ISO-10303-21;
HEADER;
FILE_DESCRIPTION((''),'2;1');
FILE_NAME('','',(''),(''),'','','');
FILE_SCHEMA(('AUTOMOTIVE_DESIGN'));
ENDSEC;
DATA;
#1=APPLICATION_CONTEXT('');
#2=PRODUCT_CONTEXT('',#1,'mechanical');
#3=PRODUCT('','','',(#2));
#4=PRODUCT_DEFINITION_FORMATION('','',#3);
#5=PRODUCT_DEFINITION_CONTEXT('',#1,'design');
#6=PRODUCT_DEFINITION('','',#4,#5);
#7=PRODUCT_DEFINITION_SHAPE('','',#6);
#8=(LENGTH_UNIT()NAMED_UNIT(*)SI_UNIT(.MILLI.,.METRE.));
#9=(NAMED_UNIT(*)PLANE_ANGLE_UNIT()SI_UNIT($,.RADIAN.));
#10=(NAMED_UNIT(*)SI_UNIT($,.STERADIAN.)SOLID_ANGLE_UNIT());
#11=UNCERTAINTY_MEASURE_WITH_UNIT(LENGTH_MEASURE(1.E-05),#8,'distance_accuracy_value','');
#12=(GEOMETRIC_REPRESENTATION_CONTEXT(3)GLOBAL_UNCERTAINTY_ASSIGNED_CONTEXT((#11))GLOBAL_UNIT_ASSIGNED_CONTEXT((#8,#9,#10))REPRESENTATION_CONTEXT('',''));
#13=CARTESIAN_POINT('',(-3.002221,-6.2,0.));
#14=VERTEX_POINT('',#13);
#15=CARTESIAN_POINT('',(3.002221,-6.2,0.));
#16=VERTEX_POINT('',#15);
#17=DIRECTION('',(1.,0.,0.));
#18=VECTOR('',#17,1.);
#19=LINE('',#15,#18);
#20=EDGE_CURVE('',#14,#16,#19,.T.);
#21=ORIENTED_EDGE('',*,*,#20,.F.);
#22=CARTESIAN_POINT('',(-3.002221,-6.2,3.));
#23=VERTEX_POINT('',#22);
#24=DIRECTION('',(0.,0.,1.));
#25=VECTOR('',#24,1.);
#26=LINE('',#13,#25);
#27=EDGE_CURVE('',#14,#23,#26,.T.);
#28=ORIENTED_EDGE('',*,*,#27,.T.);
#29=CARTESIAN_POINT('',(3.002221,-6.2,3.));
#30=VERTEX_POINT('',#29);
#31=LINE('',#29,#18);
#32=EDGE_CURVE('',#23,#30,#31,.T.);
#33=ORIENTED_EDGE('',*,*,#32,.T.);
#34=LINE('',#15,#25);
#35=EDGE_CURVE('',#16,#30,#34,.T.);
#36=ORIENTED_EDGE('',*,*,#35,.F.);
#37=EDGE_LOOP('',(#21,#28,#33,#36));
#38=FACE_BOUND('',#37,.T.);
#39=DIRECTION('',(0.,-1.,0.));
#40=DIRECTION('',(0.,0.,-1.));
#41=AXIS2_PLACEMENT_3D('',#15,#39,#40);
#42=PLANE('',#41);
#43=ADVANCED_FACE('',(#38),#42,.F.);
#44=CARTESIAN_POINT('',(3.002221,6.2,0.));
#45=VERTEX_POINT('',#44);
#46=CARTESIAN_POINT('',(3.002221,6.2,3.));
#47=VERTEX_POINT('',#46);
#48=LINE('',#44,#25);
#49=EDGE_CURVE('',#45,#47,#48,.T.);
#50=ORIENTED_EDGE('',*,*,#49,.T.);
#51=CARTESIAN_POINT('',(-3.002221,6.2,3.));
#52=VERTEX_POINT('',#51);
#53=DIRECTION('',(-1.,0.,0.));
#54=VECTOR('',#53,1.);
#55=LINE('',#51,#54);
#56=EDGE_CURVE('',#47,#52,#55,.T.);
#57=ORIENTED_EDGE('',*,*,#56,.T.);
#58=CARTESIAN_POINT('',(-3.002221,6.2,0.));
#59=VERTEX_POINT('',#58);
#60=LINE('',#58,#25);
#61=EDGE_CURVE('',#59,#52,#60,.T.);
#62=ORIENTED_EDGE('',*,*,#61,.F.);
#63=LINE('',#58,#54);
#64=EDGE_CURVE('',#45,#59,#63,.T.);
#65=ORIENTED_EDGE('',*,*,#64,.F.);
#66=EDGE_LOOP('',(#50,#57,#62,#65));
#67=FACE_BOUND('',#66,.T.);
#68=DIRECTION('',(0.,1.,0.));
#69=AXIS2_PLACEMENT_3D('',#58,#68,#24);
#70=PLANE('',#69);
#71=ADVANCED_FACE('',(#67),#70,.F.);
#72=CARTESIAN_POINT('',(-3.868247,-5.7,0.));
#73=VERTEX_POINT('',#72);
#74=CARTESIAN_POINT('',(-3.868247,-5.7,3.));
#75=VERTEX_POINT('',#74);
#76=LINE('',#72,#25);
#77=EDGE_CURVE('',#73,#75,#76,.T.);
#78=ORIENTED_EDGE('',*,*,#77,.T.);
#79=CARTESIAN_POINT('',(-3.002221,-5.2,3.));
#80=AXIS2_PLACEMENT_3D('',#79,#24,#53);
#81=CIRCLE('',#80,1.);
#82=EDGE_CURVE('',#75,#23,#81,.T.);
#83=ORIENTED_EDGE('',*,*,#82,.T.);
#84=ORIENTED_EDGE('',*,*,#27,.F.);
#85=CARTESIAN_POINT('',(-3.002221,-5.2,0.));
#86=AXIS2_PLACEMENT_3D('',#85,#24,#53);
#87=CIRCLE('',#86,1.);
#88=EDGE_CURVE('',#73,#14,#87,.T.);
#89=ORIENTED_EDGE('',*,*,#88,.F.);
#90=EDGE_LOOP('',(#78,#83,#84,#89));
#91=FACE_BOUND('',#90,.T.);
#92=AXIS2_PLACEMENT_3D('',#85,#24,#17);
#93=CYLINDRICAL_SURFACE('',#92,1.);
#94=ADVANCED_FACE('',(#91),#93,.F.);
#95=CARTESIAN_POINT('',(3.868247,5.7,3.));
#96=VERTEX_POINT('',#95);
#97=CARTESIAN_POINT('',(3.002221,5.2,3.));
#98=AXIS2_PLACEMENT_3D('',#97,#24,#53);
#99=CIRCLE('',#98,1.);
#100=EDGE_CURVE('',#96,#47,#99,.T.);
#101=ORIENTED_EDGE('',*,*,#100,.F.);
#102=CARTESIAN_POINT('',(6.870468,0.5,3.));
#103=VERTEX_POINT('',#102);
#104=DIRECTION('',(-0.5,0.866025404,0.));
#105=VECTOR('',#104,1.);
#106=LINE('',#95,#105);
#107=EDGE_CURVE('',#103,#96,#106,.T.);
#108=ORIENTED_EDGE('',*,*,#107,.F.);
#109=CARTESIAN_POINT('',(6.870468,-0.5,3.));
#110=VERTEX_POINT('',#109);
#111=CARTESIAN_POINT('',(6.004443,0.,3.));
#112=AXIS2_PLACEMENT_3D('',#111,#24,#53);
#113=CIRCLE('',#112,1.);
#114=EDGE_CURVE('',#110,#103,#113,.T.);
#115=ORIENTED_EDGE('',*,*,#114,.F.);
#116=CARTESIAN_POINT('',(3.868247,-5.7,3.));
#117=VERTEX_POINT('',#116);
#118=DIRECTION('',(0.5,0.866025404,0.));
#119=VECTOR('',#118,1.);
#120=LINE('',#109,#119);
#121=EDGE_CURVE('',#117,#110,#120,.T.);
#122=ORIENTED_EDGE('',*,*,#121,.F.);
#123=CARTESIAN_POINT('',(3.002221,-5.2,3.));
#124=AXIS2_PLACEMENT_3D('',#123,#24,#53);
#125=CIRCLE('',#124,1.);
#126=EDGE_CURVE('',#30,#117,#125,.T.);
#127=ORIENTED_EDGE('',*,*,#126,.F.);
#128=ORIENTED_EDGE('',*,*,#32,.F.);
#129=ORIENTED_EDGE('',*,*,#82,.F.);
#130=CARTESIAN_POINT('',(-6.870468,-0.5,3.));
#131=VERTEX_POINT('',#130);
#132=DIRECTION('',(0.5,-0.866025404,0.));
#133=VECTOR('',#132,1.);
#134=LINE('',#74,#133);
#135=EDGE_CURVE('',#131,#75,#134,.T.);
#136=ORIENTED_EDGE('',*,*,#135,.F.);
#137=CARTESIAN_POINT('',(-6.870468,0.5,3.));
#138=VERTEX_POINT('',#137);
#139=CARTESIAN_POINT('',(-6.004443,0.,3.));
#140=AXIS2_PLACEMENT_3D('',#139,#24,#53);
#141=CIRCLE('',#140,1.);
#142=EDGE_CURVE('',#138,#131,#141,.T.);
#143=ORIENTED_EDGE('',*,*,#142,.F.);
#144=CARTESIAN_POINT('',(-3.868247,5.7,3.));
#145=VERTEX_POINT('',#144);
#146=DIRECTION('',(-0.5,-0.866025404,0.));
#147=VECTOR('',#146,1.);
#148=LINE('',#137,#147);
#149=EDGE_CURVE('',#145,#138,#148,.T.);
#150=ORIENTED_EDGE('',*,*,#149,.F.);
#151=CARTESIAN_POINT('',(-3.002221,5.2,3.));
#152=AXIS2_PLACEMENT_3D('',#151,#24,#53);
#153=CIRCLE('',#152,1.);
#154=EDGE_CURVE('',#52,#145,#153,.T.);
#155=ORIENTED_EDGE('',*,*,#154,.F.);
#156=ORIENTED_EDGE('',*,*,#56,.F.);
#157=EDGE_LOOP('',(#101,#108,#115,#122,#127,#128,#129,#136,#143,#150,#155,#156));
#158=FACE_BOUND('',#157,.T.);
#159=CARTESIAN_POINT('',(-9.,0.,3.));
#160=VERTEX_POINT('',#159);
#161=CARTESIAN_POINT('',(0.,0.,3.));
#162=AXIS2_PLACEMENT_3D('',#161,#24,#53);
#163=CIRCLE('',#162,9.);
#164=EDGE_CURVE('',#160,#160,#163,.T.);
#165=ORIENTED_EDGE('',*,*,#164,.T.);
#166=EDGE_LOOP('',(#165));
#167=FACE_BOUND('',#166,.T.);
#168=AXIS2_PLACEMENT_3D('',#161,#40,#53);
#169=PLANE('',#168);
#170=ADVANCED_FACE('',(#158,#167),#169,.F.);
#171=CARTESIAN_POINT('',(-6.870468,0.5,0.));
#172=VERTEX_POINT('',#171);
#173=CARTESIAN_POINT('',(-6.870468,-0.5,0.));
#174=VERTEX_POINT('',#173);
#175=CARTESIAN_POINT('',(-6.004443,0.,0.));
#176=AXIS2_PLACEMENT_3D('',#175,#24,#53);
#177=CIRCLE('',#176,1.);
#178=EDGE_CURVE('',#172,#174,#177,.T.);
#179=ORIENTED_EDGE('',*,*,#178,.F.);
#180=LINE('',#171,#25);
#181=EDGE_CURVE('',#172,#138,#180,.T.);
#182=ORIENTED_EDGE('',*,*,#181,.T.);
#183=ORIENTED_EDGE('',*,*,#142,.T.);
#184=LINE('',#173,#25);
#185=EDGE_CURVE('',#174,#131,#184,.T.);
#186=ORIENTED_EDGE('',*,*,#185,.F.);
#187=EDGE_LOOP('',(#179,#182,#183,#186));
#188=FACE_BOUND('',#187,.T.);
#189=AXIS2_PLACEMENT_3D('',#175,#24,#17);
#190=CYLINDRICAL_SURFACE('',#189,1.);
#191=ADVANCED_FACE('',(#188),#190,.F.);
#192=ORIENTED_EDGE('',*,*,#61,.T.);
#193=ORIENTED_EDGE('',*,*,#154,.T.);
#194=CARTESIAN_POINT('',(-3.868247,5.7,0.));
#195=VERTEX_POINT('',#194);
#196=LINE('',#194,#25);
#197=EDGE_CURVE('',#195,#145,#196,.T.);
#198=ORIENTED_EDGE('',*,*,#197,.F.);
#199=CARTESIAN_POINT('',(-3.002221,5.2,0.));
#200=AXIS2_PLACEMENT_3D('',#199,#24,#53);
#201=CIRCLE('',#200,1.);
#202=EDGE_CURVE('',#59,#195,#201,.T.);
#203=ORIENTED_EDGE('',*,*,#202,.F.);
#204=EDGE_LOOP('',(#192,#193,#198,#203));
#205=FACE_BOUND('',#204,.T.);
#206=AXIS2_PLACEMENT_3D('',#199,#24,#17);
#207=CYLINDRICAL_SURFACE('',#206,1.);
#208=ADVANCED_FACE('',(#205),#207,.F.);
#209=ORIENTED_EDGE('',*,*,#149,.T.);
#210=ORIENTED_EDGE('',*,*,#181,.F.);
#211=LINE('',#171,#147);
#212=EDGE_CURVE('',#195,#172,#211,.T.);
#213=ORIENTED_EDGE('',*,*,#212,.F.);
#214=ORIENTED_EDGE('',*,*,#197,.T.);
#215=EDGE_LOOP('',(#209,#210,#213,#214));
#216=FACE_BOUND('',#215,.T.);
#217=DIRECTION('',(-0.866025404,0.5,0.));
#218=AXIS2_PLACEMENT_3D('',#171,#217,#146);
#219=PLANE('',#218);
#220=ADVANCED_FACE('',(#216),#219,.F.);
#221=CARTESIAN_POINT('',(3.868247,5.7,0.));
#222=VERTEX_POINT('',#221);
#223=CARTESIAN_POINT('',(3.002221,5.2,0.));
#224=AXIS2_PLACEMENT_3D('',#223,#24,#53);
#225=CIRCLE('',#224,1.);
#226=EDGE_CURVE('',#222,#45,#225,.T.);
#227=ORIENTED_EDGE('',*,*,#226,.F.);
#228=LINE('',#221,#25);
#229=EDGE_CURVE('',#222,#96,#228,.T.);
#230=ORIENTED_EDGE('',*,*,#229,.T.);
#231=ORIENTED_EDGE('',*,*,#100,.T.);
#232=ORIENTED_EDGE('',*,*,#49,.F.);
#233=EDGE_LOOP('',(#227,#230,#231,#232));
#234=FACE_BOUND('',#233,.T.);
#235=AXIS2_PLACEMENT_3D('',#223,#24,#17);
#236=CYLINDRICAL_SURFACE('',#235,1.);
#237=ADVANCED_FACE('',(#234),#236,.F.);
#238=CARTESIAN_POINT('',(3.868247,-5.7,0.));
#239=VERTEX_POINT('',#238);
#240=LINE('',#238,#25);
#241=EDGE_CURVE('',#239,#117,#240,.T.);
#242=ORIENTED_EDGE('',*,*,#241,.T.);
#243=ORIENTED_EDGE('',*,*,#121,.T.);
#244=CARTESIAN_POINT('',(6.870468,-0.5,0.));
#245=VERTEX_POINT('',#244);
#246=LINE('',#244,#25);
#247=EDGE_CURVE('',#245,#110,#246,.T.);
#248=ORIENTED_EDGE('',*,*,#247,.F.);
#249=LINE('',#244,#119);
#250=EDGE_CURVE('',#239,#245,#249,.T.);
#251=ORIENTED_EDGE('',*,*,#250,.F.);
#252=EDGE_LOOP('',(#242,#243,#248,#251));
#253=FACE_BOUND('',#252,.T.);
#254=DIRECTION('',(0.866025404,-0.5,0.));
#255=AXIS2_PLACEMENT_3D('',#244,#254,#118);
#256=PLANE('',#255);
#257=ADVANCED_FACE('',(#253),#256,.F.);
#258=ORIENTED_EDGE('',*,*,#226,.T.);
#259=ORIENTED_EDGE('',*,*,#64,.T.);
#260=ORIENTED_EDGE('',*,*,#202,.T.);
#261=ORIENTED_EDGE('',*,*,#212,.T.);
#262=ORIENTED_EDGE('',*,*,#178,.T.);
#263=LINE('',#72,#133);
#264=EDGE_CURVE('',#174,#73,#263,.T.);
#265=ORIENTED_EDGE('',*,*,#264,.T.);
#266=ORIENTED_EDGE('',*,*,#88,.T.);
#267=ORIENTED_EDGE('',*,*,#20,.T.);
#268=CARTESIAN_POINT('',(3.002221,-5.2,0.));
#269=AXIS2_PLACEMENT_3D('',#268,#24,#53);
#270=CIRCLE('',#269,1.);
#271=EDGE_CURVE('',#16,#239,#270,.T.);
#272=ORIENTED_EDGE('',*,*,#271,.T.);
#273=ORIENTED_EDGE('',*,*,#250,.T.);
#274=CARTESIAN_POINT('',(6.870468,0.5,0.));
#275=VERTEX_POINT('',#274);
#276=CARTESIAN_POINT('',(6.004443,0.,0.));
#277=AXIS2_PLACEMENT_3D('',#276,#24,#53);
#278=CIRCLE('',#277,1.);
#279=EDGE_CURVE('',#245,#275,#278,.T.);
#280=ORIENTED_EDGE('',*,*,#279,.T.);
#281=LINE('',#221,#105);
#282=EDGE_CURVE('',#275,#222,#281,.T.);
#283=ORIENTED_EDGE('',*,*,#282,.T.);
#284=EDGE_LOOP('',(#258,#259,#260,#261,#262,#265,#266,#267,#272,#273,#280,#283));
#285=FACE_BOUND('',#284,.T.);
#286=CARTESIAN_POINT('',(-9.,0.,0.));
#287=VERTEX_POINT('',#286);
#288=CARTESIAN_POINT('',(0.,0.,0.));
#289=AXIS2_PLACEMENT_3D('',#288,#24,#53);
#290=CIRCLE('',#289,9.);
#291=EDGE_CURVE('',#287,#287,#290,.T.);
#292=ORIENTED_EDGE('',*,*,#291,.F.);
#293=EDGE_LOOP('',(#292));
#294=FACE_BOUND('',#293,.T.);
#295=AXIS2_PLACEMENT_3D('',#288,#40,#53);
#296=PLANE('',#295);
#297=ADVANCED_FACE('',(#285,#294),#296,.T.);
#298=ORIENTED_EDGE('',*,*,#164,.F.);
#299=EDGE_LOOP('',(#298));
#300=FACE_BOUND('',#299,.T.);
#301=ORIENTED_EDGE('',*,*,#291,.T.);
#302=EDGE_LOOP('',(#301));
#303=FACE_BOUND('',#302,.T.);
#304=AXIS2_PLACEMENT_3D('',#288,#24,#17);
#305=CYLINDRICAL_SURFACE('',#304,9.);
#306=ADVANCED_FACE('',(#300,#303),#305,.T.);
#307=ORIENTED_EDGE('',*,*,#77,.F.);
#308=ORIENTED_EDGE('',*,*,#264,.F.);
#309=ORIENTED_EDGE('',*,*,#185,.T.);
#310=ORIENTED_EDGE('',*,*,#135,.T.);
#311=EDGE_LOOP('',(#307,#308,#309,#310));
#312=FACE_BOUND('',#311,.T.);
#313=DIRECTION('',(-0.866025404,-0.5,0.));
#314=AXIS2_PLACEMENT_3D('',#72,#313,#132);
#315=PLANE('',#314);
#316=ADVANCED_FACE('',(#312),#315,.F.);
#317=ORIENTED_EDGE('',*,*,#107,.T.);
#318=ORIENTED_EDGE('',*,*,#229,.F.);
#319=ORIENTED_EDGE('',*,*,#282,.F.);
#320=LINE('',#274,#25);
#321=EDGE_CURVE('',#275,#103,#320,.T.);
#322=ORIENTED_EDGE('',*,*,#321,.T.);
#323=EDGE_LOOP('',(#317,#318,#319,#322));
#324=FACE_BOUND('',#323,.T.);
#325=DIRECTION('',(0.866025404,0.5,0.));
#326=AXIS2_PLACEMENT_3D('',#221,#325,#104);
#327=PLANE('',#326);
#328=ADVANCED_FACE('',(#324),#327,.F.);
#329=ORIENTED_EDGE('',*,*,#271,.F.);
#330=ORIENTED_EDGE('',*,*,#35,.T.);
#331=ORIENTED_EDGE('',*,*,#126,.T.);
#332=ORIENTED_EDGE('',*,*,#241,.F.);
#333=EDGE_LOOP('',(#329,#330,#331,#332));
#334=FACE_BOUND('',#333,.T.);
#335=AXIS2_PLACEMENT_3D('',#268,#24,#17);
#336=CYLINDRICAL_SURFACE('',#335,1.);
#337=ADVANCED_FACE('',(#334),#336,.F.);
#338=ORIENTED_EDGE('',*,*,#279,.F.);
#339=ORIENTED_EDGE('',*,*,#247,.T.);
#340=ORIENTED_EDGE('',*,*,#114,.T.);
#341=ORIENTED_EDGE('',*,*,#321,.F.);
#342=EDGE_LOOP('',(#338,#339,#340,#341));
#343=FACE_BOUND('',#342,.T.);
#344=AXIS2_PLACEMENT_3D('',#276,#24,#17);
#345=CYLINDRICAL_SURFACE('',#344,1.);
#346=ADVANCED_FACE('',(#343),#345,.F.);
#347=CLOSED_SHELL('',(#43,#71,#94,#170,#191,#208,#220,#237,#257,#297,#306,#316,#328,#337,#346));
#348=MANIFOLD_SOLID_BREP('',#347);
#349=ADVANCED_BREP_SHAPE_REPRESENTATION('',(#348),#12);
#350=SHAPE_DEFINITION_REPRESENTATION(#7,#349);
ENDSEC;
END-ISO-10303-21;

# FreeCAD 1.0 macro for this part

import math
import FreeCAD as App
import Part
import Sketcher

V = App.Vector
Q = App.Units.Quantity

doc = App.newDocument("Part")
params = doc.addObject("Spreadsheet::Sheet", "Params")
for row, (alias, value) in enumerate([
    ("sketch1_diameter", "18 mm"),
    ("sketch1_radius", "1 mm"),
    ("pad1_length", "3 mm"),
], start=1):
    params.set(f"A{row}", alias)
    params.set(f"B{row}", "=" + value)
    params.setAlias(f"B{row}", alias)

body = doc.addObject("PartDesign::Body", "Body")

# Sketch on XY plane
sketch1 = body.newObject("Sketcher::SketchObject", "Sketch")
sketch1.AttachmentSupport = (doc.getObject("XY_Plane"), [""])
sketch1.MapMode = "FlatFace"
sketch1.AttachmentOffset = App.Placement(V(0, 0, 3), App.Rotation())
sketch1.addGeometry([
    Part.Circle(V(0, 0, 0), V(0, 0, 1), 9),  # 0
    Part.ArcOfCircle(Part.Circle(V(-3, 5.2, 0), V(0, 0, 1), 1), math.radians(90), math.radians(150)),  # 1
    Part.LineSegment(V(-3, 6.2, 0), V(3, 6.2, 0)),  # 2
    Part.ArcOfCircle(Part.Circle(V(3, 5.2, 0), V(0, 0, 1), 1), math.radians(30), math.radians(90)),  # 3
    Part.LineSegment(V(3.9, 5.7, 0), V(6.9, 0.5, 0)),  # 4
    Part.ArcOfCircle(Part.Circle(V(6, 0, 0), V(0, 0, 1), 1), math.radians(-30), math.radians(30)),  # 5
    Part.LineSegment(V(6.9, -0.5, 0), V(3.9, -5.7, 0)),  # 6
    Part.ArcOfCircle(Part.Circle(V(3, -5.2, 0), V(0, 0, 1), 1), math.radians(-90), math.radians(-30)),  # 7
    Part.LineSegment(V(3, -6.2, 0), V(-3, -6.2, 0)),  # 8
    Part.ArcOfCircle(Part.Circle(V(-3, -5.2, 0), V(0, 0, 1), 1), math.radians(-150), math.radians(-90)),  # 9
    Part.LineSegment(V(-3.9, -5.7, 0), V(-6.9, -0.5, 0)),  # 10
    Part.ArcOfCircle(Part.Circle(V(-6, 0, 0), V(0, 0, 1), 1), math.radians(150), math.radians(210)),  # 11
    Part.LineSegment(V(-6.9, 0.5, 0), V(-3.9, 5.7, 0)),  # 12
], False)
sketch1.addConstraint([
    Sketcher.Constraint("Tangent", 1, 1, 2, 1),
    Sketcher.Constraint("Tangent", 2, 2, 3, 2),
    Sketcher.Constraint("Tangent", 3, 1, 4, 1),
    Sketcher.Constraint("Tangent", 4, 2, 5, 2),
    Sketcher.Constraint("Tangent", 5, 1, 6, 1),
    Sketcher.Constraint("Tangent", 6, 2, 7, 2),
    Sketcher.Constraint("Tangent", 7, 1, 8, 1),
    Sketcher.Constraint("Tangent", 8, 2, 9, 2),
    Sketcher.Constraint("Tangent", 9, 1, 10, 1),
    Sketcher.Constraint("Tangent", 10, 2, 11, 2),
    Sketcher.Constraint("Tangent", 11, 1, 12, 1),
    Sketcher.Constraint("Tangent", 12, 2, 1, 2),
    Sketcher.Constraint("Horizontal", 2),
    Sketcher.Constraint("Horizontal", 8),
    Sketcher.Constraint("Coincident", 0, 3, -1, 1),
    Sketcher.Constraint("Equal", 1, 3),
    Sketcher.Constraint("Equal", 3, 5),
    Sketcher.Constraint("Equal", 5, 7),
    Sketcher.Constraint("Equal", 7, 9),
    Sketcher.Constraint("Equal", 9, 11),
    Sketcher.Constraint("Symmetric", 1, 3, 7, 3, -1, 1),
    Sketcher.Constraint("Symmetric", 5, 3, 11, 3, -1, 1),
    Sketcher.Constraint("Symmetric", 6, 2, 9, 1, -2),
    Sketcher.Constraint("Parallel", 4, 10),
    Sketcher.Constraint("Diameter", 0, Q("18 mm")),
    Sketcher.Constraint("Radius", 1, Q("1 mm")),
    Sketcher.Constraint("Angle", 4, Q("-60 deg")),
    Sketcher.Constraint("DistanceY", -1, 1, 1, 3, Q("5.2 mm")),
    Sketcher.Constraint("DistanceX", 2, 1, 2, 2, Q("6.004443 mm")),
])
sketch1.setExpression("Constraints[24]", "Params.sketch1_diameter")
sketch1.setExpression("Constraints[25]", "Params.sketch1_radius")
pad1 = body.newObject("PartDesign::Pad", "Pad")
pad1.Profile = sketch1
pad1.setExpression("Length", "Params.pad1_length")
pad1.Reversed = True

doc.recompute()
